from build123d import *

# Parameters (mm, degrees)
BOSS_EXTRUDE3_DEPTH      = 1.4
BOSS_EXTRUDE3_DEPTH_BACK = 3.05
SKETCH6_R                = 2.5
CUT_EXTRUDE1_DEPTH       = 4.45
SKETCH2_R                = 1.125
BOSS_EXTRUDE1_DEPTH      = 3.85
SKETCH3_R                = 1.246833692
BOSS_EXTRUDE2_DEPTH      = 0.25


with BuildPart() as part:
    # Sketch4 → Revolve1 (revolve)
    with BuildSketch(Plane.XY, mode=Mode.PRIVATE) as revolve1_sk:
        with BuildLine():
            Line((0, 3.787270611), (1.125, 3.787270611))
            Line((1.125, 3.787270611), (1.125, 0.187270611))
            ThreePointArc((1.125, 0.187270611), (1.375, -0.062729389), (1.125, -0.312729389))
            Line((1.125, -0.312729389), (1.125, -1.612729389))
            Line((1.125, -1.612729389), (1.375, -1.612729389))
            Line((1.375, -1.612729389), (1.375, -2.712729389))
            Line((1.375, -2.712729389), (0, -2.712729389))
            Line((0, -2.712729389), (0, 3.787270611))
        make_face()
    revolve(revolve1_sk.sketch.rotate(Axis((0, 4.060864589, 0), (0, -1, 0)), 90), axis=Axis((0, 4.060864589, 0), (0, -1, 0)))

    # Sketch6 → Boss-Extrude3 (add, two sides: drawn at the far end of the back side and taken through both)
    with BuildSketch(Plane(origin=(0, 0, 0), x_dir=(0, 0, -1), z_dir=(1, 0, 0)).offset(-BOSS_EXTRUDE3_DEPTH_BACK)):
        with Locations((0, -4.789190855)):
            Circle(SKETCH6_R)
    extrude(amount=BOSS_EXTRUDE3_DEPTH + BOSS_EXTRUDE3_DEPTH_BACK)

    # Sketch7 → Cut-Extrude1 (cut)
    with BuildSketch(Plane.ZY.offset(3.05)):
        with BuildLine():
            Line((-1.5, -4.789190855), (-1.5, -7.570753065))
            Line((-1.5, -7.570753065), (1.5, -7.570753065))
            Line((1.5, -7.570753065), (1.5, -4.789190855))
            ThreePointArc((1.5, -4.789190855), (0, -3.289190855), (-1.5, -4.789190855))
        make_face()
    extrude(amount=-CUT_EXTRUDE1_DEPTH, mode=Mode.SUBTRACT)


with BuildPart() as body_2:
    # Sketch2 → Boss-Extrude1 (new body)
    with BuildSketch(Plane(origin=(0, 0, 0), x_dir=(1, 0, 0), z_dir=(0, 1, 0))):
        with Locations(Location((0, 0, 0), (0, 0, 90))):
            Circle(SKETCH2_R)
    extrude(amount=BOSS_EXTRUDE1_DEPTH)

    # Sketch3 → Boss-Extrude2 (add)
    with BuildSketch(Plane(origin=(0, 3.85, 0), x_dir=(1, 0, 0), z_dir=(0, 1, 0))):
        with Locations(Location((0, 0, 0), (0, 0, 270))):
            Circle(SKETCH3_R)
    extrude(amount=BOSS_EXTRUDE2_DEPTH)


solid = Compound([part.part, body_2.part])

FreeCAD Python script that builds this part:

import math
import FreeCAD as App
import Part
import Sketcher

V = App.Vector

doc = App.newDocument("Part")
body = doc.addObject("PartDesign::Body", "Body")

sketch1 = body.newObject("Sketcher::SketchObject", "Sketch")
sketch1.AttachmentSupport = (doc.getObject("XY_Plane"), [""])
sketch1.MapMode = "FlatFace"
sketch1.addGeometry(Part.LineSegment(V(1.12, 3.79, 0), V(0, 3.79, 0)), False)
sketch1.addGeometry(Part.LineSegment(V(0, 3.79, 0), V(0, -2.71, 0)), False)
sketch1.addGeometry(Part.LineSegment(V(0, -2.71, 0), V(1.38, -2.71, 0)), False)
sketch1.addGeometry(Part.LineSegment(V(1.38, -2.71, 0), V(1.38, -1.61, 0)), False)
sketch1.addGeometry(Part.LineSegment(V(1.38, -1.61, 0), V(1.12, -1.61, 0)), False)
sketch1.addGeometry(Part.LineSegment(V(1.12, -1.61, 0), V(1.12, -0.31, 0)), False)
sketch1.addGeometry(Part.ArcOfCircle(Part.Circle(V(1.12, -0.06, 0), V(0, 0, 1), 0.25), math.radians(-90), math.radians(90)), False)
sketch1.addGeometry(Part.LineSegment(V(1.12, 0.19, 0), V(1.12, 3.79, 0)), False)
sketch1.addConstraint(Sketcher.Constraint("Coincident", 0, 2, 1, 1))
sketch1.addConstraint(Sketcher.Constraint("Coincident", 1, 2, 2, 1))
sketch1.addConstraint(Sketcher.Constraint("Coincident", 2, 2, 3, 1))
sketch1.addConstraint(Sketcher.Constraint("Coincident", 3, 2, 4, 1))
sketch1.addConstraint(Sketcher.Constraint("Coincident", 4, 2, 5, 1))
sketch1.addConstraint(Sketcher.Constraint("Coincident", 5, 2, 6, 1))
sketch1.addConstraint(Sketcher.Constraint("Coincident", 6, 2, 7, 1))
sketch1.addConstraint(Sketcher.Constraint("Coincident", 7, 2, 0, 1))
sketch1.addConstraint(Sketcher.Constraint("Horizontal", 0))
sketch1.addConstraint(Sketcher.Constraint("Vertical", 1))
sketch1.addConstraint(Sketcher.Constraint("Horizontal", 2))
sketch1.addConstraint(Sketcher.Constraint("Vertical", 3))
sketch1.addConstraint(Sketcher.Constraint("Horizontal", 4))
sketch1.addConstraint(Sketcher.Constraint("Vertical", 5))
sketch1.addConstraint(Sketcher.Constraint("Vertical", 7))
sketch1.addConstraint(Sketcher.Constraint("PointOnObject", 0, 2, -2))
sketch1.addConstraint(Sketcher.Constraint("Vertical", 6, 3, 4, 2))
sketch1.addConstraint(Sketcher.Constraint("Vertical", 5, 2, 6, 2))
sketch1.addConstraint(Sketcher.Constraint("Radius", 6, 0.25))
sketch1.addConstraint(Sketcher.Constraint("DistanceY", 1, 2, 1, 1, 6.5))
sketch1.addConstraint(Sketcher.Constraint("DistanceY", 3, 1, 3, 2, 1.1))
sketch1.addConstraint(Sketcher.Constraint("DistanceY", 5, 1, 5, 2, 1.3))
sketch1.addConstraint(Sketcher.Constraint("DistanceX", 4, 2, 4, 1, 0.25))
sketch1.addConstraint(Sketcher.Constraint("DistanceX", 0, 2, 0, 1, 1.125))
sketch1.addConstraint(Sketcher.Constraint("DistanceY", 6, 3, -1, 1, 0.062729))
revolution = body.newObject("PartDesign::Revolution", "Revolution")
revolution.Profile = sketch1
revolution.ReferenceAxis = (sketch1, ["V_Axis"])
revolution.Angle = 360

sketch2 = body.newObject("Sketcher::SketchObject", "Sketch001")
sketch2.AttachmentSupport = (doc.getObject("YZ_Plane"), [""])
sketch2.MapMode = "FlatFace"
sketch2.addGeometry(Part.Circle(V(-4.8, 0, 0), V(0, 0, 1), 2.5), False)
sketch2.addConstraint(Sketcher.Constraint("PointOnObject", 0, 3, -1))
sketch2.addConstraint(Sketcher.Constraint("Diameter", 0, 5.0))
sketch2.addConstraint(Sketcher.Constraint("DistanceX", 0, 3, -1, 1, 4.789191))
pad1 = body.newObject("PartDesign::Pad", "Pad")
pad1.Profile = sketch2
pad1.Type = "TwoLengths"
pad1.Length = 1.4
pad1.Length2 = 3.05

sketch3 = body.newObject("Sketcher::SketchObject", "Sketch002")
sketch3.AttachmentSupport = (doc.getObject("YZ_Plane"), [""])
sketch3.MapMode = "FlatFace"
sketch3.AttachmentOffset = App.Placement(V(0, 0, -3.05), App.Rotation())
sketch3.addGeometry(Part.LineSegment(V(-4.8, -1.5, 0), V(-7.6, -1.5, 0)), False)
sketch3.addGeometry(Part.LineSegment(V(-7.6, -1.5, 0), V(-7.6, 1.5, 0)), False)
sketch3.addGeometry(Part.LineSegment(V(-7.6, 1.5, 0), V(-4.8, 1.5, 0)), False)
sketch3.addGeometry(Part.ArcOfCircle(Part.Circle(V(-4.8, 0, 0), V(0, 0, 1), 1.5), math.radians(-90), math.radians(90)), False)
sketch3.addConstraint(Sketcher.Constraint("Coincident", 0, 2, 1, 1))
sketch3.addConstraint(Sketcher.Constraint("Coincident", 1, 2, 2, 1))
sketch3.addConstraint(Sketcher.Constraint("Tangent", 2, 2, 3, 2))
sketch3.addConstraint(Sketcher.Constraint("Tangent", 3, 1, 0, 1))
sketch3.addConstraint(Sketcher.Constraint("Horizontal", 0))
sketch3.addConstraint(Sketcher.Constraint("Vertical", 1))
sketch3.addConstraint(Sketcher.Constraint("Horizontal", 2))
sketch3.addConstraint(Sketcher.Constraint("PointOnObject", 3, 3, -1))
sketch3.addConstraint(Sketcher.Constraint("Radius", 3, 1.5))
sketch3.addConstraint(Sketcher.Constraint("DistanceX", 0, 2, 0, 1, 2.781562))
sketch3.addConstraint(Sketcher.Constraint("DistanceX", 3, 3, -1, 1, 4.789191))
pocket1 = body.newObject("PartDesign::Pocket", "Pocket")
pocket1.Profile = sketch3
pocket1.Length = 4.45
pocket1.Reversed = True
body2 = doc.addObject("PartDesign::Body", "Body001")

sketch4 = body2.newObject("Sketcher::SketchObject", "Sketch003")
sketch4.AttachmentSupport = (doc.getObject("XZ_Plane001"), [""])
sketch4.MapMode = "FlatFace"
sketch4.addGeometry(Part.Circle(V(0, 0, 0), V(0, 0, 1), 1.1), False)
sketch4.addConstraint(Sketcher.Constraint("Coincident", 0, 3, -1, 1))
sketch4.addConstraint(Sketcher.Constraint("Diameter", 0, 2.25))
pad2 = body2.newObject("PartDesign::Pad", "Pad001")
pad2.Profile = sketch4
pad2.Length = 3.85
pad2.Reversed = True

sketch5 = body2.newObject("Sketcher::SketchObject", "Sketch004")
sketch5.AttachmentSupport = (doc.getObject("XZ_Plane001"), [""])
sketch5.MapMode = "FlatFace"
sketch5.AttachmentOffset = App.Placement(V(0, 0, -3.85), App.Rotation())
sketch5.addGeometry(Part.Circle(V(0, 0, 0), V(0, 0, 1), 1.2), False)
sketch5.addConstraint(Sketcher.Constraint("Coincident", 0, 3, -1, 1))
sketch5.addConstraint(Sketcher.Constraint("Diameter", 0, 2.493667))
pad3 = body2.newObject("PartDesign::Pad", "Pad002")
pad3.Profile = sketch5
pad3.Length = 0.25
pad3.Reversed = True

doc.recompute()
